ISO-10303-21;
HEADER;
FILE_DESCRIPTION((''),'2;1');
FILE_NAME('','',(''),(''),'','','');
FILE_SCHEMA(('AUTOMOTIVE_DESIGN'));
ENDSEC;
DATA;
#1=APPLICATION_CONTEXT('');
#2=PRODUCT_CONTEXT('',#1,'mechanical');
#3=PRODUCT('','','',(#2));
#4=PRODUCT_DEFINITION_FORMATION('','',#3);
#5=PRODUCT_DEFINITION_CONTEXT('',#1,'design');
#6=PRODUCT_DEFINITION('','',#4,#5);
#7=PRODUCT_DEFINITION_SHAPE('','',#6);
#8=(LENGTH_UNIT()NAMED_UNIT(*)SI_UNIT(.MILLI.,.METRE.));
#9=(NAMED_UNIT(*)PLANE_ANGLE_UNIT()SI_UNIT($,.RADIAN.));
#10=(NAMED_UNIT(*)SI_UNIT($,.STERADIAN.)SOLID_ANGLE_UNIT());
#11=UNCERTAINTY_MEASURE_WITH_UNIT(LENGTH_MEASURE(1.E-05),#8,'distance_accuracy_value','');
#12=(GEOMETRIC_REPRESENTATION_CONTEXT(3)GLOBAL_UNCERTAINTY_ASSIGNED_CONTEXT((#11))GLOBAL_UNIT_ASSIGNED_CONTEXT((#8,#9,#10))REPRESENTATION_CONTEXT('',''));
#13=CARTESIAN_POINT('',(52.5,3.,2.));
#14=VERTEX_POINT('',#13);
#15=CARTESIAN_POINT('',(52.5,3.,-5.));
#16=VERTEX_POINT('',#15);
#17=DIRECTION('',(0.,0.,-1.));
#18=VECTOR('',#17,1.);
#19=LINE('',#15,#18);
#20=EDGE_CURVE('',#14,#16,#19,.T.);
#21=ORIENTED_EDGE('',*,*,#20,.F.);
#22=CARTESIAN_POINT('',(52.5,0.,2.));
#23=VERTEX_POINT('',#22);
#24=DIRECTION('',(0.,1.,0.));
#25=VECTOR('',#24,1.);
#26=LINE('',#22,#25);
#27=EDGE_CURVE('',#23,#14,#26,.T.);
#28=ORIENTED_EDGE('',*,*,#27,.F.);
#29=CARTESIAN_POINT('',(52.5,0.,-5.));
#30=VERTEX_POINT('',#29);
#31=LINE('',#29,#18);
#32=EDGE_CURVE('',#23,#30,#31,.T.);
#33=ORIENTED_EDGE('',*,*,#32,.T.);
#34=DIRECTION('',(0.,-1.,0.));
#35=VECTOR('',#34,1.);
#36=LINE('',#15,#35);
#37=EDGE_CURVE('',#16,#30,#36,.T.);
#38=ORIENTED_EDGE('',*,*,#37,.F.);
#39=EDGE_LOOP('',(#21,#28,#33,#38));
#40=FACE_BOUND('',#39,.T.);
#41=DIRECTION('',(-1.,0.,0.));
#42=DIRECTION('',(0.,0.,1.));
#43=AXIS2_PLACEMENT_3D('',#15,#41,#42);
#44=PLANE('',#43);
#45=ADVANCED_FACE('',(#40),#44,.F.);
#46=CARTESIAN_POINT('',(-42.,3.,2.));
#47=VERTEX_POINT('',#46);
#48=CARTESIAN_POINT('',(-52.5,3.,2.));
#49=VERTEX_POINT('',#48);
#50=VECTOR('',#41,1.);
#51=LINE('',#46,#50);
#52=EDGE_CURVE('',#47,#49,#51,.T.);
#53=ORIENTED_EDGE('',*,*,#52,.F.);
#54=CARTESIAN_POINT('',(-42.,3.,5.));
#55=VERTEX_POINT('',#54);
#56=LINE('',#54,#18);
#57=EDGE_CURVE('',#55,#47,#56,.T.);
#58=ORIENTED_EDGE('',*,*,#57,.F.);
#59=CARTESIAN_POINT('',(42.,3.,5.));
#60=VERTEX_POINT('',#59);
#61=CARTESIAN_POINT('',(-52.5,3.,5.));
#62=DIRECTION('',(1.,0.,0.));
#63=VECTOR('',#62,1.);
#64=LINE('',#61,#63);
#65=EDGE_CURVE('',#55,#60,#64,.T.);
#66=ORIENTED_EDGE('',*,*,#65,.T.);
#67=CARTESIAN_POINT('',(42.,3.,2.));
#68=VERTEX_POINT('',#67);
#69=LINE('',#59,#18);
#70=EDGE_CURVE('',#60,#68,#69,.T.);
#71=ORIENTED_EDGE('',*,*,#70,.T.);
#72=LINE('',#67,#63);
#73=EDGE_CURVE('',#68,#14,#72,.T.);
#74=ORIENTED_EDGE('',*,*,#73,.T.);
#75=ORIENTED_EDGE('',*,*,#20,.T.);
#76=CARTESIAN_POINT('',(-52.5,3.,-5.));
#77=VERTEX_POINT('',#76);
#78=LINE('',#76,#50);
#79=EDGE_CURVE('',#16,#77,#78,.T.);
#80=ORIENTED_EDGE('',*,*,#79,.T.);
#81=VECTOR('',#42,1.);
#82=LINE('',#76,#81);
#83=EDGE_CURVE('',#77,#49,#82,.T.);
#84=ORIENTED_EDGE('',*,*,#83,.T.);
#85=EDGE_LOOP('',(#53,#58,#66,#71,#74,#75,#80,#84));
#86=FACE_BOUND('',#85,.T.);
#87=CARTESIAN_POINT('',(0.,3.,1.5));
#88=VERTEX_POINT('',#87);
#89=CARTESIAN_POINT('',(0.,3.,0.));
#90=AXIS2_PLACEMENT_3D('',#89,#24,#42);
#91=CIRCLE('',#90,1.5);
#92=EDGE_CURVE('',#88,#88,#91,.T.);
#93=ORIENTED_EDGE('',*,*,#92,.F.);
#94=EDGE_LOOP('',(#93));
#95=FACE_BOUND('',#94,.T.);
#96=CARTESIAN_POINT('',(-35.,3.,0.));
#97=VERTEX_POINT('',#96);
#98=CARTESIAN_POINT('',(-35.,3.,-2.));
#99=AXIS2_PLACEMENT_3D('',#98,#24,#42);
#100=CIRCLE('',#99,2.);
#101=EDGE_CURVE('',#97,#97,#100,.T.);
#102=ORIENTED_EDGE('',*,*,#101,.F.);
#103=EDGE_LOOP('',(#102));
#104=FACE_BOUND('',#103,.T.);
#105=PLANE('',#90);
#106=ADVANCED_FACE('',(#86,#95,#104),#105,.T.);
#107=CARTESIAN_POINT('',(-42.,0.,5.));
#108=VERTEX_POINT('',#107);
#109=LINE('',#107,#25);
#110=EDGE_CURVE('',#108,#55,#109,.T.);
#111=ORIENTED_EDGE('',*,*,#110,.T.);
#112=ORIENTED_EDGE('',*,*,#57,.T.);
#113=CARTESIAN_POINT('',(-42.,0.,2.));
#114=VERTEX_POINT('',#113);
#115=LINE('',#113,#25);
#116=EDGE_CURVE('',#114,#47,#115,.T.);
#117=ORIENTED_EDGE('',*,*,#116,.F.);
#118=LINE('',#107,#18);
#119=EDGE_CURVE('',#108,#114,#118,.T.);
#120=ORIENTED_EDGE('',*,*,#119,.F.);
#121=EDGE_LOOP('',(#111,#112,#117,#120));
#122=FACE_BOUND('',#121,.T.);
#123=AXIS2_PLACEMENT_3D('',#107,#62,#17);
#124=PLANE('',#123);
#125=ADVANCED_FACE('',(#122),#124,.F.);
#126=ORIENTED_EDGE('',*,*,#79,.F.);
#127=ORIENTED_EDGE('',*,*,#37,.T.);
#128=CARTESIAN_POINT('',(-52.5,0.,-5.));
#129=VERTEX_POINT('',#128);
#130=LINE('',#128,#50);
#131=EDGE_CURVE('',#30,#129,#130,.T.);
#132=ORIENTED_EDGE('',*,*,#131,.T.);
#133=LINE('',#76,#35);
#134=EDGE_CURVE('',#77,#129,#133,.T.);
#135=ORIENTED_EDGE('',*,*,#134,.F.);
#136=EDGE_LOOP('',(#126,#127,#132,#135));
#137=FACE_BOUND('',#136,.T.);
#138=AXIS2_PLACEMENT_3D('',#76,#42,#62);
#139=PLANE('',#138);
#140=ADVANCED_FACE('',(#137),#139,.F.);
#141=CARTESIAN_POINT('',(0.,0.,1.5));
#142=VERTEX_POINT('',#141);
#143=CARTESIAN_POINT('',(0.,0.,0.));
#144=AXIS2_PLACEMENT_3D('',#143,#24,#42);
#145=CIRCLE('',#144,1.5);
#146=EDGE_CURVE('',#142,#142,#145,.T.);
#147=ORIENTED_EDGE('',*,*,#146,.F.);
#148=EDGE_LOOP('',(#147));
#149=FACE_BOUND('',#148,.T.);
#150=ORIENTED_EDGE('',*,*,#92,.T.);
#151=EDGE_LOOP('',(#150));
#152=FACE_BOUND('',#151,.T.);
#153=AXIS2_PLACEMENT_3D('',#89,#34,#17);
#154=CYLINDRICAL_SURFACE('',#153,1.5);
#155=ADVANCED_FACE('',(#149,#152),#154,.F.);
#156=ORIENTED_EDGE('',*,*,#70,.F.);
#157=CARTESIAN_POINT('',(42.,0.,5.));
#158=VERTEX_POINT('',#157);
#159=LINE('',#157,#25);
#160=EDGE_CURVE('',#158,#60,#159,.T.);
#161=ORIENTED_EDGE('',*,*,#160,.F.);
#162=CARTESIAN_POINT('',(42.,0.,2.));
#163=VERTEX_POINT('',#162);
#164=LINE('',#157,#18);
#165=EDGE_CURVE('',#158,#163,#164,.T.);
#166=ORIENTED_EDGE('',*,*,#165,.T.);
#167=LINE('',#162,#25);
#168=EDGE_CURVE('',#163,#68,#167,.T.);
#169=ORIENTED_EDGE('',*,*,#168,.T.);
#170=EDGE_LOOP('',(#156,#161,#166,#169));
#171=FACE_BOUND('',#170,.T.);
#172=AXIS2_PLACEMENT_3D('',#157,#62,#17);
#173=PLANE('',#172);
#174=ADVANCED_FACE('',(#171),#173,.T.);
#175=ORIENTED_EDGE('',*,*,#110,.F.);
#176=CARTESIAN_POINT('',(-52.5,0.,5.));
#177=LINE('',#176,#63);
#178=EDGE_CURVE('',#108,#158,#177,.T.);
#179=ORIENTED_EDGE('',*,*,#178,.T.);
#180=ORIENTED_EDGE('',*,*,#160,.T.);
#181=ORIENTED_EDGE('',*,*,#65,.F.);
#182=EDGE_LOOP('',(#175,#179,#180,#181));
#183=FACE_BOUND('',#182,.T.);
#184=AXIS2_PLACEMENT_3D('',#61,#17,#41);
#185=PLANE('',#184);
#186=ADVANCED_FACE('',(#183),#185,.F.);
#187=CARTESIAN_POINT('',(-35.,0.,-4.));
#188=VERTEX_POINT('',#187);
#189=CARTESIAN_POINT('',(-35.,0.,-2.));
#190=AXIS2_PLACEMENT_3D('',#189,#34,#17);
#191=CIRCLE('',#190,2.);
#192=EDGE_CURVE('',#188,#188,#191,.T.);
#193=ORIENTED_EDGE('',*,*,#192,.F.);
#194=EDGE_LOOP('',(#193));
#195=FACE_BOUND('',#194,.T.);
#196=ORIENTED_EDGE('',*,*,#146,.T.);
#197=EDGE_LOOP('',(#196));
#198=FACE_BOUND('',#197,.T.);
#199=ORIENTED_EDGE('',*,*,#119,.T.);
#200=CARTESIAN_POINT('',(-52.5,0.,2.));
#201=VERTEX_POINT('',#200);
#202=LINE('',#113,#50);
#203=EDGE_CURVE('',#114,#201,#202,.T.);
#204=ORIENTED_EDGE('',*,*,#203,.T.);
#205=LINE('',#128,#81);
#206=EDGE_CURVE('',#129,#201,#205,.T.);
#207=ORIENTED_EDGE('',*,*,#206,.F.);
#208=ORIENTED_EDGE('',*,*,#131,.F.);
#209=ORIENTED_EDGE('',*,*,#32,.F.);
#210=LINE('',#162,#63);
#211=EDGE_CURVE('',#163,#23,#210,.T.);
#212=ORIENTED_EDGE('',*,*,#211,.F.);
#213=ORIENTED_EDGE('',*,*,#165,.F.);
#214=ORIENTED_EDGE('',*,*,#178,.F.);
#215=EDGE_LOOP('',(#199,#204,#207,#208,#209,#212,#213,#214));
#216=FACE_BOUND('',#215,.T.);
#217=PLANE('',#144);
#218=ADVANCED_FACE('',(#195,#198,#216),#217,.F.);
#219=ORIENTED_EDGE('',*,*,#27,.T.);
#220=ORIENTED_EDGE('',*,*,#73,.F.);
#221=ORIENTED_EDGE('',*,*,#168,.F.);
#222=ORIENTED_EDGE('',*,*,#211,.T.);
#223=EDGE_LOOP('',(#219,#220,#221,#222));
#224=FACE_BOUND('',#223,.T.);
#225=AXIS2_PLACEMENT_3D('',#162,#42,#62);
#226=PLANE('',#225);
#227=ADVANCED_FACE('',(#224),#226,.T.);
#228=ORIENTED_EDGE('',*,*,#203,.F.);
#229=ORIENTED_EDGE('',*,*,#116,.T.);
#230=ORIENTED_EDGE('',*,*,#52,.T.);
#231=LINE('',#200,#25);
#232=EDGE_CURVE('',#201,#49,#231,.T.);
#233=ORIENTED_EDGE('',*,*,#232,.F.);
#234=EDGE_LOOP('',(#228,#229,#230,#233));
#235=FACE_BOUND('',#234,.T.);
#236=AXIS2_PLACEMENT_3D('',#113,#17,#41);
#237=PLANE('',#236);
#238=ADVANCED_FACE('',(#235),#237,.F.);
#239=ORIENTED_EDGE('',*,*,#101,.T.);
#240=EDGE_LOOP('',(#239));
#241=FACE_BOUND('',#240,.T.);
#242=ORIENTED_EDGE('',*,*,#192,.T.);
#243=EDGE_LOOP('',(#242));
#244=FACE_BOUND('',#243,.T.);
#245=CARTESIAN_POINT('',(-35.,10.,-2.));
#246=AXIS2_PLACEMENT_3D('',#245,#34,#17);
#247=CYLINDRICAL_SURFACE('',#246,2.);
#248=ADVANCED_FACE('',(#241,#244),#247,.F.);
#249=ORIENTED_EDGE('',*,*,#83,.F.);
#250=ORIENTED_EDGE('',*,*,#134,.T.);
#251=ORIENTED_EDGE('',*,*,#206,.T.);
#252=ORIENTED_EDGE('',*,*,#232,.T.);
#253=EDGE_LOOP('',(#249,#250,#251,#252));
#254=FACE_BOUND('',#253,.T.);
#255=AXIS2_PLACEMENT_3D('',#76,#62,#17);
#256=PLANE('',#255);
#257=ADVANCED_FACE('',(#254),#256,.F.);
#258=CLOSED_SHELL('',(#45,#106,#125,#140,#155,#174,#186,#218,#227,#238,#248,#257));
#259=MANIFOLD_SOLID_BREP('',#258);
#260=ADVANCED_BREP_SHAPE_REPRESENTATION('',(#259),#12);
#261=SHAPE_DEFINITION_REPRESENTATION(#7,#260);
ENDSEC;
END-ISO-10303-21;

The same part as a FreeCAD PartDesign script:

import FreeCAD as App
import Part
import Sketcher
from FreeCAD import Vector
Q = App.Units.Quantity

doc = App.newDocument("Part")
params = doc.addObject("Spreadsheet::Sheet", "Params")
for row, (alias, value) in enumerate([
    ("sketch1_diameter", "3 mm"),
    ("sketch1_width", "105 mm"),
    ("sketch1_height", "10 mm"),
    ("pad1_length", "3 mm"),
    ("sketch2_height", "3 mm"),
    ("sketch2_width", "10.5 mm"),
    ("sketch3_diameter", "4 mm"),
    ("pocket2_length", "10 mm"),
], start=1):
    params.set(f"A{row}", alias)
    params.set(f"B{row}", "=" + value)
    params.setAlias(f"B{row}", alias)

body = doc.addObject("PartDesign::Body", "Body")

sketch1 = body.newObject("Sketcher::SketchObject", "Sketch")
sketch1.AttachmentSupport = (doc.getObject("XZ_Plane"), [""])
sketch1.MapMode = "FlatFace"
sketch1.addGeometry([
    Part.LineSegment(Vector(-52.5, -5, 0), Vector(-52.5, 5, 0)),
    Part.LineSegment(Vector(-52.5, 5, 0), Vector(52.5, 5, 0)),
    Part.LineSegment(Vector(52.5, 5, 0), Vector(52.5, -5, 0)),
    Part.LineSegment(Vector(52.5, -5, 0), Vector(-52.5, -5, 0)),
    Part.Circle(Vector(0, 0, 0), Vector(0, 0, 1), 1.5),
], False)
sketch1.addConstraint([
    Sketcher.Constraint("Coincident", 0, 2, 1, 1),
    Sketcher.Constraint("Coincident", 1, 2, 2, 1),
    Sketcher.Constraint("Coincident", 2, 2, 3, 1),
    Sketcher.Constraint("Coincident", 3, 2, 0, 1),
    Sketcher.Constraint("Vertical", 0),
    Sketcher.Constraint("Horizontal", 1),
    Sketcher.Constraint("Vertical", 2),
    Sketcher.Constraint("Horizontal", 3),
    Sketcher.Constraint("Coincident", 4, 3, -1, 1),
    Sketcher.Constraint("Symmetric", 0, 2, 2, 2, -1, 1),
    Sketcher.Constraint("Diameter", 4, Q("3 mm")),
    Sketcher.Constraint("DistanceX", 1, 1, 1, 2, Q("105 mm")),
    Sketcher.Constraint("DistanceY", 0, 1, 0, 2, Q("10 mm")),
])
sketch1.setExpression("Constraints[10]", "Params.sketch1_diameter")
sketch1.setExpression("Constraints[11]", "Params.sketch1_width")
sketch1.setExpression("Constraints[12]", "Params.sketch1_height")
pad1 = body.newObject("PartDesign::Pad", "Pad")
pad1.Profile = sketch1
pad1.setExpression("Length", "Params.pad1_length")
pad1.Reversed = True

sketch2 = body.newObject("Sketcher::SketchObject", "Sketch001")
sketch2.AttachmentSupport = (doc.getObject("XZ_Plane"), [""])
sketch2.MapMode = "FlatFace"
sketch2.AttachmentOffset = App.Placement(Vector(0, 0, -3), App.Rotation())
sketch2.addGeometry([
    Part.LineSegment(Vector(-52.5, 2, 0), Vector(-52.5, 5, 0)),
    Part.LineSegment(Vector(-52.5, 5, 0), Vector(-42, 5, 0)),
    Part.LineSegment(Vector(-42, 5, 0), Vector(-42, 2, 0)),
    Part.LineSegment(Vector(-42, 2, 0), Vector(-52.5, 2, 0)),
], False)
sketch2.addConstraint([
    Sketcher.Constraint("Coincident", 0, 2, 1, 1),
    Sketcher.Constraint("Coincident", 1, 2, 2, 1),
    Sketcher.Constraint("Coincident", 2, 2, 3, 1),
    Sketcher.Constraint("Coincident", 3, 2, 0, 1),
    Sketcher.Constraint("Vertical", 0),
    Sketcher.Constraint("Horizontal", 1),
    Sketcher.Constraint("Vertical", 2),
    Sketcher.Constraint("Horizontal", 3),
    Sketcher.Constraint("DistanceY", 0, 1, 0, 2, Q("3 mm")),
    Sketcher.Constraint("DistanceX", 1, 1, 1, 2, Q("10.5 mm")),
    Sketcher.Constraint("DistanceY", -1, 1, 0, 2, Q("5 mm")),
    Sketcher.Constraint("DistanceX", 1, 2, -1, 1, Q("42 mm")),
])
sketch2.setExpression("Constraints[8]", "Params.sketch2_height")
sketch2.setExpression("Constraints[9]", "Params.sketch2_width")
pocket1 = body.newObject("PartDesign::Pocket", "Pocket")
pocket1.Profile = sketch2
pocket1.Type = "ThroughAll"
pocket1.Reversed = True
doc.recompute()

mirrored = body.newObject("PartDesign::Mirrored", "Mirrored")
mirrored.Originals = [pocket1]
mirrored.MirrorPlane = (doc.getObject("YZ_Plane"), [""])
body.Tip = mirrored

sketch3 = body.newObject("Sketcher::SketchObject", "Sketch002")
sketch3.AttachmentSupport = (doc.getObject("XZ_Plane"), [""])
sketch3.MapMode = "FlatFace"
sketch3.addGeometry(Part.Circle(Vector(-35, -2, 0), Vector(0, 0, 1), 2), False)
sketch3.addConstraint([
    Sketcher.Constraint("Diameter", 0, Q("4 mm")),
    Sketcher.Constraint("DistanceX", 0, 3, -1, 1, Q("35 mm")),
    Sketcher.Constraint("DistanceY", 0, 3, -1, 1, Q("2 mm")),
])
sketch3.setExpression("Constraints[0]", "Params.sketch3_diameter")
pocket2 = body.newObject("PartDesign::Pocket", "Pocket001")
pocket2.Profile = sketch3
pocket2.setExpression("Length", "Params.pocket2_length")

doc.recompute()
